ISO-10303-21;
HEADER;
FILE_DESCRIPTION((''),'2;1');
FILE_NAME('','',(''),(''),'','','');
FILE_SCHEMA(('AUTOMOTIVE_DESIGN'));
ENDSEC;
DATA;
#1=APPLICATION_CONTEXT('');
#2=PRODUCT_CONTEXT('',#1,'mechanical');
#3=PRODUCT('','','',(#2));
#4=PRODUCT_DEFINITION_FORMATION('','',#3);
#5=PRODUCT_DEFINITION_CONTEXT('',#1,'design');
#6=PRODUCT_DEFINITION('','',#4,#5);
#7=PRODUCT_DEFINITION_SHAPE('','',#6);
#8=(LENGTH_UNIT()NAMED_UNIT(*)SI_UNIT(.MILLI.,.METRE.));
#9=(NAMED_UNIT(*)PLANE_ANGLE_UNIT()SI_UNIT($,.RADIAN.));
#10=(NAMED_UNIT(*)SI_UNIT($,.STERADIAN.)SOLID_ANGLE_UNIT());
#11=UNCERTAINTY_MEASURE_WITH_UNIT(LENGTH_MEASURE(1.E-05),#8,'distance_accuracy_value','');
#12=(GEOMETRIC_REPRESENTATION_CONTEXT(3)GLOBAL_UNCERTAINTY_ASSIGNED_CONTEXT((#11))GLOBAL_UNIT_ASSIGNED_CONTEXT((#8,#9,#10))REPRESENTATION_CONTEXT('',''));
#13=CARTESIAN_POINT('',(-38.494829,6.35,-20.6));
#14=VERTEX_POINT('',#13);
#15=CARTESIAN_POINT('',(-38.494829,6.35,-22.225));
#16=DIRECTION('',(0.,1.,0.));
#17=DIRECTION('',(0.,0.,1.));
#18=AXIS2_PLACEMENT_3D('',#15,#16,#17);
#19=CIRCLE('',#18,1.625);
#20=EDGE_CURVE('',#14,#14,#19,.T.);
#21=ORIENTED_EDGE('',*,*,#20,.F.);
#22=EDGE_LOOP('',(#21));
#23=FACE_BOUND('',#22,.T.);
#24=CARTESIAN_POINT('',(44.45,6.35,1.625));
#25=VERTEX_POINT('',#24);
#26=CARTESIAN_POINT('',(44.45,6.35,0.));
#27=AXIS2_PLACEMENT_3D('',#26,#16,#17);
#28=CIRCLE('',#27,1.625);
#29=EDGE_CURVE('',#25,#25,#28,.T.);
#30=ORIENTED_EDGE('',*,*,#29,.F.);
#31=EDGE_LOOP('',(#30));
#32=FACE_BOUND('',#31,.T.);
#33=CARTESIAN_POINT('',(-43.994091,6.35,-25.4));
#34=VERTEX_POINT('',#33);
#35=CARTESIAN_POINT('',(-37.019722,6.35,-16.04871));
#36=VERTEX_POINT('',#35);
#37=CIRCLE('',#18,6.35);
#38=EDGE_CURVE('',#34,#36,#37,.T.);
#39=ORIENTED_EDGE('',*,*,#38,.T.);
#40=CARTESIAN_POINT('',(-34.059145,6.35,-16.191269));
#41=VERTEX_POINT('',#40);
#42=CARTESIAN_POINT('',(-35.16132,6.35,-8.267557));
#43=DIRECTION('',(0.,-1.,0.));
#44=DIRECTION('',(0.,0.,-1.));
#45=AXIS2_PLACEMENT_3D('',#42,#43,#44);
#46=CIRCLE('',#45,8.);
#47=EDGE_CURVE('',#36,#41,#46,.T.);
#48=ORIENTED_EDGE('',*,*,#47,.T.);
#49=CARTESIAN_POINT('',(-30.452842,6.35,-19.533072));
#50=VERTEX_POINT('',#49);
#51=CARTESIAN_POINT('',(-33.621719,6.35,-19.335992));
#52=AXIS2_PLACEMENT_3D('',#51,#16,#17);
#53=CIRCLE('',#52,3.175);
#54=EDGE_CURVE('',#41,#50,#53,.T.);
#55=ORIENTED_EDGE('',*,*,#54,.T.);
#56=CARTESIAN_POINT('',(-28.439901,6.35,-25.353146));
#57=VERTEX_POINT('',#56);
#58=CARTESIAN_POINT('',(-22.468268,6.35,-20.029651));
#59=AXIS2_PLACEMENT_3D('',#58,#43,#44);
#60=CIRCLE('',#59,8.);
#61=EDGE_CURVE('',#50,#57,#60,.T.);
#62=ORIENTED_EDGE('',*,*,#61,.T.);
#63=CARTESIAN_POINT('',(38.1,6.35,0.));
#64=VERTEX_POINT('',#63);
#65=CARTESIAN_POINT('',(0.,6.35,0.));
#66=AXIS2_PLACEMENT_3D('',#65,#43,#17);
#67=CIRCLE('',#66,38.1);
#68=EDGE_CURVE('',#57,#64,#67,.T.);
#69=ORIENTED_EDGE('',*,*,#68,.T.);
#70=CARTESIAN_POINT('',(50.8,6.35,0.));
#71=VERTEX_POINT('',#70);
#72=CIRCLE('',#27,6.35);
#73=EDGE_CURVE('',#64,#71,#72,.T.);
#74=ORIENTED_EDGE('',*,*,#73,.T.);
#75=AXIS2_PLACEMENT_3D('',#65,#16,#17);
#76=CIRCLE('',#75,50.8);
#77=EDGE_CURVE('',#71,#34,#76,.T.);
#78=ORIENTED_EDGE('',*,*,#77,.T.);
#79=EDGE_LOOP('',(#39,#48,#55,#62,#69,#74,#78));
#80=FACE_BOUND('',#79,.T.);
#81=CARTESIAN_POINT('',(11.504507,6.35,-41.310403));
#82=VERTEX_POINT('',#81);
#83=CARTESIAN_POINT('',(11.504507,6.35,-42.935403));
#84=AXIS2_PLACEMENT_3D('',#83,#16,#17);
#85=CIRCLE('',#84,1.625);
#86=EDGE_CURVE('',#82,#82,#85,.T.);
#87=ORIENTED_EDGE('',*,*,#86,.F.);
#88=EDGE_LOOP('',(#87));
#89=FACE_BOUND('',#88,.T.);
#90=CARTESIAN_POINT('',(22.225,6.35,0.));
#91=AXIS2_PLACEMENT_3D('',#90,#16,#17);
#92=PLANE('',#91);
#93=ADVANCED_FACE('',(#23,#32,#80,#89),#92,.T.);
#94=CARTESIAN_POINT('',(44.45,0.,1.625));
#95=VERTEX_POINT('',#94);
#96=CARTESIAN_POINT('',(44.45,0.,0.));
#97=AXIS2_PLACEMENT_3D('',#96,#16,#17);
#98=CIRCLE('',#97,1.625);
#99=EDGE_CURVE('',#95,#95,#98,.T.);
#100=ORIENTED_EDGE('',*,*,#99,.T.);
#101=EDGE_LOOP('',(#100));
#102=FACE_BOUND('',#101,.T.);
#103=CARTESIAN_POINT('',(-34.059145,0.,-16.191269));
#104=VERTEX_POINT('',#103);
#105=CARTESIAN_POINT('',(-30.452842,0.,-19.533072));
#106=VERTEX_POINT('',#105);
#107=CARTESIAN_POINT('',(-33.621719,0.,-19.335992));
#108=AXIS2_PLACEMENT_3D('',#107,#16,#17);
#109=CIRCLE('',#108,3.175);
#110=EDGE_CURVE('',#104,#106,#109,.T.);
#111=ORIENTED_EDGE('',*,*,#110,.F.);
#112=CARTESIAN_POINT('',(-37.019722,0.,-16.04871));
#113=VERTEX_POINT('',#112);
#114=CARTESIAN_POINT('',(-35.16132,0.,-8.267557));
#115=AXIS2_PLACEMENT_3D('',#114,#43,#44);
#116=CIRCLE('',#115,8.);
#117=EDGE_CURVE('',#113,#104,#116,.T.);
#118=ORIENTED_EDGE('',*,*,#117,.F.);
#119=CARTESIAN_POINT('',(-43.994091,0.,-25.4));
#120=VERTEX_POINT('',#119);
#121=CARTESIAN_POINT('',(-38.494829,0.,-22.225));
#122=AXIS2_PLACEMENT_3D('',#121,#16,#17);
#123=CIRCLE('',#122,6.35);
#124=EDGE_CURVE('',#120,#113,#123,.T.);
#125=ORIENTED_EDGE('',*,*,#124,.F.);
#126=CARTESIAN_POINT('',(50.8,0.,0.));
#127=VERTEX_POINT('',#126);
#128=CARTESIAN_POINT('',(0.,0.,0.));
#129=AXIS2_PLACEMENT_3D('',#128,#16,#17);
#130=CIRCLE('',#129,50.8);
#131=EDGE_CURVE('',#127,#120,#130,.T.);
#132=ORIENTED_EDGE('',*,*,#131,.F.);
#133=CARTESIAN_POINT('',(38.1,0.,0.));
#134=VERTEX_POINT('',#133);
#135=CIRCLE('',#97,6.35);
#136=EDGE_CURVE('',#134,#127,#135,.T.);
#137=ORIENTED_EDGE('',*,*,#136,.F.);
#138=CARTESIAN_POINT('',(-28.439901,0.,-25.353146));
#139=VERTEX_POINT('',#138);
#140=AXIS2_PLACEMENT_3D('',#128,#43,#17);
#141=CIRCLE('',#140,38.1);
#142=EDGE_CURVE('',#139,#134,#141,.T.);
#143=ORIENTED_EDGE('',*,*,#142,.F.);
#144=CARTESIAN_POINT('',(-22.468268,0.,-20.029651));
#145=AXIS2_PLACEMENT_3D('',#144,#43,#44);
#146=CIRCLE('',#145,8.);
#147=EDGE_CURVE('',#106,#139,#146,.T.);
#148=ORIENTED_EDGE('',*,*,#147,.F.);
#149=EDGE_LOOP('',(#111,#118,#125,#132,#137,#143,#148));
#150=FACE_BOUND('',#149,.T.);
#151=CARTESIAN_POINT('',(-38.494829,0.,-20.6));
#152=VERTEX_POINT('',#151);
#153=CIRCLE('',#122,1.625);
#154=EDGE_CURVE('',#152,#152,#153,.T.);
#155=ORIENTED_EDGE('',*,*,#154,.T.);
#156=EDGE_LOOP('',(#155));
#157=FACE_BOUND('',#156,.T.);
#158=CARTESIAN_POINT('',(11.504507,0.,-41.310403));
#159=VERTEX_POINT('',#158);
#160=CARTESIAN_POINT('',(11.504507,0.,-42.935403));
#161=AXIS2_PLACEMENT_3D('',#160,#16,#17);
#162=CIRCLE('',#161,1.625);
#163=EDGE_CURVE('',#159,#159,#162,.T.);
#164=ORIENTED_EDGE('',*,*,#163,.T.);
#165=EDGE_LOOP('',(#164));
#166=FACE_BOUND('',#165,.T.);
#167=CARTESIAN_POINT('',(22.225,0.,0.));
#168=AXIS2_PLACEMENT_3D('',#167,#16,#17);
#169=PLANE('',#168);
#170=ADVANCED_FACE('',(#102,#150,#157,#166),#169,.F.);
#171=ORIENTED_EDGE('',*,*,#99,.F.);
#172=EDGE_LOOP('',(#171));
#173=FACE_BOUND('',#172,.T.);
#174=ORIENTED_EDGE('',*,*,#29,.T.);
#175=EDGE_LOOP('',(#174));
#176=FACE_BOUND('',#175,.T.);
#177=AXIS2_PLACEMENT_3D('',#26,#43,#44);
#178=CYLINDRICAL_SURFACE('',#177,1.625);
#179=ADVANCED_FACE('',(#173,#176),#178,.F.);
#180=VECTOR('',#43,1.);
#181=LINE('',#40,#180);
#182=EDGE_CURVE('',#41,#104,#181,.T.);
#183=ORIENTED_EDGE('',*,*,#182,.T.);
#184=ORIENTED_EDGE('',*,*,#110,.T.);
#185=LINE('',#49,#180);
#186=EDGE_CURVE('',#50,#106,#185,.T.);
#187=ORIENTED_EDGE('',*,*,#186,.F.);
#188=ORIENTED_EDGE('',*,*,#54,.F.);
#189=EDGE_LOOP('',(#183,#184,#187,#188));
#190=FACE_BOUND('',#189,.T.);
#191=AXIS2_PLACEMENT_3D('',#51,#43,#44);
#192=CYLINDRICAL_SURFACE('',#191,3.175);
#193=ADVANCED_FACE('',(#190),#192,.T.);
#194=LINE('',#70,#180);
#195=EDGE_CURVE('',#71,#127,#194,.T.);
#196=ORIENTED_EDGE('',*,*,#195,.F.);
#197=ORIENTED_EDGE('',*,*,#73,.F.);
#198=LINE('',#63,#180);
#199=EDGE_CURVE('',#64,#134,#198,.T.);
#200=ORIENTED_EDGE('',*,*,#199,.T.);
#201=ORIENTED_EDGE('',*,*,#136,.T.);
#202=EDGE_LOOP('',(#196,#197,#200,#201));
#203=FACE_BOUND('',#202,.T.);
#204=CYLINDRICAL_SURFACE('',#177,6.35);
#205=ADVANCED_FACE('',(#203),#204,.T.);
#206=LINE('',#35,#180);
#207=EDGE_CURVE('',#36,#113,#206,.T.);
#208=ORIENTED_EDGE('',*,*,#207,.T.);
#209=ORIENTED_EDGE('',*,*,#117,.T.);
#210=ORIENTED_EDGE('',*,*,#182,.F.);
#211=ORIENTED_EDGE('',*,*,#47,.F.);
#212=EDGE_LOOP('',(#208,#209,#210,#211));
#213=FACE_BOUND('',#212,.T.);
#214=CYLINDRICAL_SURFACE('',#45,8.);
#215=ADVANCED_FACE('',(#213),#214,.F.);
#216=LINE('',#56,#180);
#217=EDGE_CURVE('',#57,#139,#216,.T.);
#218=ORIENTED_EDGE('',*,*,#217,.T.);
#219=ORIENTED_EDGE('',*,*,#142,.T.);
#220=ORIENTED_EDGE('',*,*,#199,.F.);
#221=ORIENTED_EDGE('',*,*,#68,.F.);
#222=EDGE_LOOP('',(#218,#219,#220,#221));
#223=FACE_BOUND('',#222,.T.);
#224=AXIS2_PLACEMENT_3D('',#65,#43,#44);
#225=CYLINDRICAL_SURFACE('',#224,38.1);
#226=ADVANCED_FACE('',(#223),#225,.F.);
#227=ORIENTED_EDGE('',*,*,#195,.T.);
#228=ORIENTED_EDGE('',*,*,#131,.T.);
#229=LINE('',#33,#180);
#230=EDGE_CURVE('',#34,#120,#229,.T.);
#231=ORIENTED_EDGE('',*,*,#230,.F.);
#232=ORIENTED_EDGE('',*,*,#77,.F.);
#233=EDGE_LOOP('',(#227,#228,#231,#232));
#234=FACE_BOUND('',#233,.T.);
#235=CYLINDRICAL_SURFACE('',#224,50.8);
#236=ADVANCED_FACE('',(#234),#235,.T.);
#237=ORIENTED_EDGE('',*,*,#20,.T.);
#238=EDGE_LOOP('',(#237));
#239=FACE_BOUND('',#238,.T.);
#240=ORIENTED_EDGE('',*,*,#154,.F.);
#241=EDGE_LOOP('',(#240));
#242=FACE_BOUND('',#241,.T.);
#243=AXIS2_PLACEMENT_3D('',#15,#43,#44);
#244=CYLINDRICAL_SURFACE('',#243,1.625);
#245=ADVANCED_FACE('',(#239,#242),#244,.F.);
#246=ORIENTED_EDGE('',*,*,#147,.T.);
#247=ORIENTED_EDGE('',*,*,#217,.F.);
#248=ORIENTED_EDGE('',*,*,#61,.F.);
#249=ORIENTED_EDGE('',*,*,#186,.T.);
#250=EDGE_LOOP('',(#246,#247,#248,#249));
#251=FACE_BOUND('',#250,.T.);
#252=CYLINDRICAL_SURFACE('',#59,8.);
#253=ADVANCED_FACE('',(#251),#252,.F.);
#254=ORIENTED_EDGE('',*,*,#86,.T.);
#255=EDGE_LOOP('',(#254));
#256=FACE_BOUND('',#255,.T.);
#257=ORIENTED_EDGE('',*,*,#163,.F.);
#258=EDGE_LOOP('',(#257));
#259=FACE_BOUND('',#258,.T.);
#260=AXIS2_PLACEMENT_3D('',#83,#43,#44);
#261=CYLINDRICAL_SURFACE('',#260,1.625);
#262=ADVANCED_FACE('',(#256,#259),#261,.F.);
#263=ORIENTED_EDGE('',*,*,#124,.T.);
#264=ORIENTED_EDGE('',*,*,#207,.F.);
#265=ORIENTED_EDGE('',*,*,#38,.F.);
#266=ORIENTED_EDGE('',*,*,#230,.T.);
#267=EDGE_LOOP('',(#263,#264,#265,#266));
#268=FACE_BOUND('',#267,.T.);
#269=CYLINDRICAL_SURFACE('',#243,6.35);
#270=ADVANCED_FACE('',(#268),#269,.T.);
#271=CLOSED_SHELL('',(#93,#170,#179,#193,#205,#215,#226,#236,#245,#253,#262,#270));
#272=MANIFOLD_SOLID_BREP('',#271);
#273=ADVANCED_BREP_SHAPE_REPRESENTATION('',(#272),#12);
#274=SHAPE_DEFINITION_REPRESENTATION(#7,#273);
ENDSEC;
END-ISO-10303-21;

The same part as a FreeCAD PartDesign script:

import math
import FreeCAD as App
import Part
import Sketcher
Q = App.Units.Quantity

doc = App.newDocument("Part")
params = doc.addObject("Spreadsheet::Sheet", "Params")
for row, (alias, value) in enumerate([
    ("sketch1_radius", "2 in"),
    ("sketch1_radius2", "1.5 in"),
    ("sketch1_radius3", "0.125 in"),
    ("pad1_length", "0.25 in"),
], start=1):
    params.set(f"A{row}", alias)
    params.set(f"B{row}", "=" + value)
    params.setAlias(f"B{row}", alias)

body = doc.addObject("PartDesign::Body", "Body")

# Sketch on XZ plane
sketch1 = body.newObject("Sketcher::SketchObject", "Sketch")
sketch1.AttachmentSupport = (doc.getObject("XZ_Plane"), [""])
sketch1.MapMode = "FlatFace"
sketch1.addGeometry([
    Part.ArcOfCircle(Part.Circle(App.Vector(0, 0, 0), App.Vector(0, 0, 1), 50.8), math.radians(-150), math.radians(0)),  # 0
    Part.ArcOfCircle(Part.Circle(App.Vector(-38.5, -22.2, 0), App.Vector(0, 0, 1), 6.3), math.radians(77), math.radians(210)),  # 1
    Part.ArcOfCircle(Part.Circle(App.Vector(-35.2, -8.3, 0), App.Vector(0, 0, 1), 8), math.radians(-103), math.radians(-82)),  # 2
    Part.ArcOfCircle(Part.Circle(App.Vector(-33.6, -19.3, 0), App.Vector(0, 0, 1), 3.2), math.radians(-4), math.radians(98)),  # 3
    Part.ArcOfCircle(Part.Circle(App.Vector(-22.5, -20, 0), App.Vector(0, 0, 1), 8), math.radians(176), math.radians(222)),  # 4
    Part.ArcOfCircle(Part.Circle(App.Vector(0, 0, 0), App.Vector(0, 0, 1), 38.1), math.radians(-138), math.radians(0)),  # 5
    Part.ArcOfCircle(Part.Circle(App.Vector(44.5, 0, 0), App.Vector(0, 0, 1), 6.3), math.radians(0), math.radians(180)),  # 6
    Part.Circle(App.Vector(44.5, 0, 0), App.Vector(0, 0, 1), 1.6),  # 7
    Part.Circle(App.Vector(-38.5, -22.2, 0), App.Vector(0, 0, 1), 1.6),  # 8
    Part.Circle(App.Vector(11.5, -42.9, 0), App.Vector(0, 0, 1), 1.6),  # 9
], False)
sketch1.addConstraint([
    Sketcher.Constraint("Tangent", 0, 1, 1, 2),
    Sketcher.Constraint("Tangent", 1, 1, 2, 1),
    Sketcher.Constraint("Tangent", 2, 2, 3, 2),
    Sketcher.Constraint("Tangent", 3, 1, 4, 1),
    Sketcher.Constraint("Tangent", 4, 2, 5, 1),
    Sketcher.Constraint("Tangent", 5, 2, 6, 2),
    Sketcher.Constraint("Tangent", 6, 1, 0, 2),
    Sketcher.Constraint("Coincident", 0, 3, -1, 1),
    Sketcher.Constraint("Coincident", 5, 3, -1, 1),
    Sketcher.Constraint("Coincident", 7, 3, 6, 3),
    Sketcher.Constraint("Coincident", 8, 3, 1, 3),
    Sketcher.Constraint("Equal", 2, 4),
    Sketcher.Constraint("Equal", 1, 6),
    Sketcher.Constraint("Equal", 7, 8),
    Sketcher.Constraint("Equal", 8, 9),
    Sketcher.Constraint("PointOnObject", 6, 3, -1),
    Sketcher.Constraint("Radius", 0, Q("2 in")),
    Sketcher.Constraint("Radius", 5, Q("1.5 in")),
    Sketcher.Constraint("DistanceY", 0, 1, -1, 1, Q("1 in")),
    Sketcher.Constraint("Radius", 3, Q("0.125 in")),
    Sketcher.Constraint("Diameter", 7, 3.25),
    Sketcher.Constraint("Radius", 2, 8.0),
    Sketcher.Constraint("DistanceX", 4, 2, -1, 1, 28.439901),
    Sketcher.Constraint("DistanceX", 2, 3, 3, 3, 1.539601),
    Sketcher.Constraint("DistanceY", 9, 3, 3, 3, 23.599411),
    Sketcher.Constraint("DistanceX", -1, 1, 9, 3, 11.504507),
])
sketch1.setExpression("Constraints[16]", "Params.sketch1_radius")
sketch1.setExpression("Constraints[17]", "Params.sketch1_radius2")
sketch1.setExpression("Constraints[19]", "Params.sketch1_radius3")
pad1 = body.newObject("PartDesign::Pad", "Pad")
pad1.Profile = sketch1
pad1.setExpression("Length", "Params.pad1_length")
pad1.Reversed = True

doc.recompute()
